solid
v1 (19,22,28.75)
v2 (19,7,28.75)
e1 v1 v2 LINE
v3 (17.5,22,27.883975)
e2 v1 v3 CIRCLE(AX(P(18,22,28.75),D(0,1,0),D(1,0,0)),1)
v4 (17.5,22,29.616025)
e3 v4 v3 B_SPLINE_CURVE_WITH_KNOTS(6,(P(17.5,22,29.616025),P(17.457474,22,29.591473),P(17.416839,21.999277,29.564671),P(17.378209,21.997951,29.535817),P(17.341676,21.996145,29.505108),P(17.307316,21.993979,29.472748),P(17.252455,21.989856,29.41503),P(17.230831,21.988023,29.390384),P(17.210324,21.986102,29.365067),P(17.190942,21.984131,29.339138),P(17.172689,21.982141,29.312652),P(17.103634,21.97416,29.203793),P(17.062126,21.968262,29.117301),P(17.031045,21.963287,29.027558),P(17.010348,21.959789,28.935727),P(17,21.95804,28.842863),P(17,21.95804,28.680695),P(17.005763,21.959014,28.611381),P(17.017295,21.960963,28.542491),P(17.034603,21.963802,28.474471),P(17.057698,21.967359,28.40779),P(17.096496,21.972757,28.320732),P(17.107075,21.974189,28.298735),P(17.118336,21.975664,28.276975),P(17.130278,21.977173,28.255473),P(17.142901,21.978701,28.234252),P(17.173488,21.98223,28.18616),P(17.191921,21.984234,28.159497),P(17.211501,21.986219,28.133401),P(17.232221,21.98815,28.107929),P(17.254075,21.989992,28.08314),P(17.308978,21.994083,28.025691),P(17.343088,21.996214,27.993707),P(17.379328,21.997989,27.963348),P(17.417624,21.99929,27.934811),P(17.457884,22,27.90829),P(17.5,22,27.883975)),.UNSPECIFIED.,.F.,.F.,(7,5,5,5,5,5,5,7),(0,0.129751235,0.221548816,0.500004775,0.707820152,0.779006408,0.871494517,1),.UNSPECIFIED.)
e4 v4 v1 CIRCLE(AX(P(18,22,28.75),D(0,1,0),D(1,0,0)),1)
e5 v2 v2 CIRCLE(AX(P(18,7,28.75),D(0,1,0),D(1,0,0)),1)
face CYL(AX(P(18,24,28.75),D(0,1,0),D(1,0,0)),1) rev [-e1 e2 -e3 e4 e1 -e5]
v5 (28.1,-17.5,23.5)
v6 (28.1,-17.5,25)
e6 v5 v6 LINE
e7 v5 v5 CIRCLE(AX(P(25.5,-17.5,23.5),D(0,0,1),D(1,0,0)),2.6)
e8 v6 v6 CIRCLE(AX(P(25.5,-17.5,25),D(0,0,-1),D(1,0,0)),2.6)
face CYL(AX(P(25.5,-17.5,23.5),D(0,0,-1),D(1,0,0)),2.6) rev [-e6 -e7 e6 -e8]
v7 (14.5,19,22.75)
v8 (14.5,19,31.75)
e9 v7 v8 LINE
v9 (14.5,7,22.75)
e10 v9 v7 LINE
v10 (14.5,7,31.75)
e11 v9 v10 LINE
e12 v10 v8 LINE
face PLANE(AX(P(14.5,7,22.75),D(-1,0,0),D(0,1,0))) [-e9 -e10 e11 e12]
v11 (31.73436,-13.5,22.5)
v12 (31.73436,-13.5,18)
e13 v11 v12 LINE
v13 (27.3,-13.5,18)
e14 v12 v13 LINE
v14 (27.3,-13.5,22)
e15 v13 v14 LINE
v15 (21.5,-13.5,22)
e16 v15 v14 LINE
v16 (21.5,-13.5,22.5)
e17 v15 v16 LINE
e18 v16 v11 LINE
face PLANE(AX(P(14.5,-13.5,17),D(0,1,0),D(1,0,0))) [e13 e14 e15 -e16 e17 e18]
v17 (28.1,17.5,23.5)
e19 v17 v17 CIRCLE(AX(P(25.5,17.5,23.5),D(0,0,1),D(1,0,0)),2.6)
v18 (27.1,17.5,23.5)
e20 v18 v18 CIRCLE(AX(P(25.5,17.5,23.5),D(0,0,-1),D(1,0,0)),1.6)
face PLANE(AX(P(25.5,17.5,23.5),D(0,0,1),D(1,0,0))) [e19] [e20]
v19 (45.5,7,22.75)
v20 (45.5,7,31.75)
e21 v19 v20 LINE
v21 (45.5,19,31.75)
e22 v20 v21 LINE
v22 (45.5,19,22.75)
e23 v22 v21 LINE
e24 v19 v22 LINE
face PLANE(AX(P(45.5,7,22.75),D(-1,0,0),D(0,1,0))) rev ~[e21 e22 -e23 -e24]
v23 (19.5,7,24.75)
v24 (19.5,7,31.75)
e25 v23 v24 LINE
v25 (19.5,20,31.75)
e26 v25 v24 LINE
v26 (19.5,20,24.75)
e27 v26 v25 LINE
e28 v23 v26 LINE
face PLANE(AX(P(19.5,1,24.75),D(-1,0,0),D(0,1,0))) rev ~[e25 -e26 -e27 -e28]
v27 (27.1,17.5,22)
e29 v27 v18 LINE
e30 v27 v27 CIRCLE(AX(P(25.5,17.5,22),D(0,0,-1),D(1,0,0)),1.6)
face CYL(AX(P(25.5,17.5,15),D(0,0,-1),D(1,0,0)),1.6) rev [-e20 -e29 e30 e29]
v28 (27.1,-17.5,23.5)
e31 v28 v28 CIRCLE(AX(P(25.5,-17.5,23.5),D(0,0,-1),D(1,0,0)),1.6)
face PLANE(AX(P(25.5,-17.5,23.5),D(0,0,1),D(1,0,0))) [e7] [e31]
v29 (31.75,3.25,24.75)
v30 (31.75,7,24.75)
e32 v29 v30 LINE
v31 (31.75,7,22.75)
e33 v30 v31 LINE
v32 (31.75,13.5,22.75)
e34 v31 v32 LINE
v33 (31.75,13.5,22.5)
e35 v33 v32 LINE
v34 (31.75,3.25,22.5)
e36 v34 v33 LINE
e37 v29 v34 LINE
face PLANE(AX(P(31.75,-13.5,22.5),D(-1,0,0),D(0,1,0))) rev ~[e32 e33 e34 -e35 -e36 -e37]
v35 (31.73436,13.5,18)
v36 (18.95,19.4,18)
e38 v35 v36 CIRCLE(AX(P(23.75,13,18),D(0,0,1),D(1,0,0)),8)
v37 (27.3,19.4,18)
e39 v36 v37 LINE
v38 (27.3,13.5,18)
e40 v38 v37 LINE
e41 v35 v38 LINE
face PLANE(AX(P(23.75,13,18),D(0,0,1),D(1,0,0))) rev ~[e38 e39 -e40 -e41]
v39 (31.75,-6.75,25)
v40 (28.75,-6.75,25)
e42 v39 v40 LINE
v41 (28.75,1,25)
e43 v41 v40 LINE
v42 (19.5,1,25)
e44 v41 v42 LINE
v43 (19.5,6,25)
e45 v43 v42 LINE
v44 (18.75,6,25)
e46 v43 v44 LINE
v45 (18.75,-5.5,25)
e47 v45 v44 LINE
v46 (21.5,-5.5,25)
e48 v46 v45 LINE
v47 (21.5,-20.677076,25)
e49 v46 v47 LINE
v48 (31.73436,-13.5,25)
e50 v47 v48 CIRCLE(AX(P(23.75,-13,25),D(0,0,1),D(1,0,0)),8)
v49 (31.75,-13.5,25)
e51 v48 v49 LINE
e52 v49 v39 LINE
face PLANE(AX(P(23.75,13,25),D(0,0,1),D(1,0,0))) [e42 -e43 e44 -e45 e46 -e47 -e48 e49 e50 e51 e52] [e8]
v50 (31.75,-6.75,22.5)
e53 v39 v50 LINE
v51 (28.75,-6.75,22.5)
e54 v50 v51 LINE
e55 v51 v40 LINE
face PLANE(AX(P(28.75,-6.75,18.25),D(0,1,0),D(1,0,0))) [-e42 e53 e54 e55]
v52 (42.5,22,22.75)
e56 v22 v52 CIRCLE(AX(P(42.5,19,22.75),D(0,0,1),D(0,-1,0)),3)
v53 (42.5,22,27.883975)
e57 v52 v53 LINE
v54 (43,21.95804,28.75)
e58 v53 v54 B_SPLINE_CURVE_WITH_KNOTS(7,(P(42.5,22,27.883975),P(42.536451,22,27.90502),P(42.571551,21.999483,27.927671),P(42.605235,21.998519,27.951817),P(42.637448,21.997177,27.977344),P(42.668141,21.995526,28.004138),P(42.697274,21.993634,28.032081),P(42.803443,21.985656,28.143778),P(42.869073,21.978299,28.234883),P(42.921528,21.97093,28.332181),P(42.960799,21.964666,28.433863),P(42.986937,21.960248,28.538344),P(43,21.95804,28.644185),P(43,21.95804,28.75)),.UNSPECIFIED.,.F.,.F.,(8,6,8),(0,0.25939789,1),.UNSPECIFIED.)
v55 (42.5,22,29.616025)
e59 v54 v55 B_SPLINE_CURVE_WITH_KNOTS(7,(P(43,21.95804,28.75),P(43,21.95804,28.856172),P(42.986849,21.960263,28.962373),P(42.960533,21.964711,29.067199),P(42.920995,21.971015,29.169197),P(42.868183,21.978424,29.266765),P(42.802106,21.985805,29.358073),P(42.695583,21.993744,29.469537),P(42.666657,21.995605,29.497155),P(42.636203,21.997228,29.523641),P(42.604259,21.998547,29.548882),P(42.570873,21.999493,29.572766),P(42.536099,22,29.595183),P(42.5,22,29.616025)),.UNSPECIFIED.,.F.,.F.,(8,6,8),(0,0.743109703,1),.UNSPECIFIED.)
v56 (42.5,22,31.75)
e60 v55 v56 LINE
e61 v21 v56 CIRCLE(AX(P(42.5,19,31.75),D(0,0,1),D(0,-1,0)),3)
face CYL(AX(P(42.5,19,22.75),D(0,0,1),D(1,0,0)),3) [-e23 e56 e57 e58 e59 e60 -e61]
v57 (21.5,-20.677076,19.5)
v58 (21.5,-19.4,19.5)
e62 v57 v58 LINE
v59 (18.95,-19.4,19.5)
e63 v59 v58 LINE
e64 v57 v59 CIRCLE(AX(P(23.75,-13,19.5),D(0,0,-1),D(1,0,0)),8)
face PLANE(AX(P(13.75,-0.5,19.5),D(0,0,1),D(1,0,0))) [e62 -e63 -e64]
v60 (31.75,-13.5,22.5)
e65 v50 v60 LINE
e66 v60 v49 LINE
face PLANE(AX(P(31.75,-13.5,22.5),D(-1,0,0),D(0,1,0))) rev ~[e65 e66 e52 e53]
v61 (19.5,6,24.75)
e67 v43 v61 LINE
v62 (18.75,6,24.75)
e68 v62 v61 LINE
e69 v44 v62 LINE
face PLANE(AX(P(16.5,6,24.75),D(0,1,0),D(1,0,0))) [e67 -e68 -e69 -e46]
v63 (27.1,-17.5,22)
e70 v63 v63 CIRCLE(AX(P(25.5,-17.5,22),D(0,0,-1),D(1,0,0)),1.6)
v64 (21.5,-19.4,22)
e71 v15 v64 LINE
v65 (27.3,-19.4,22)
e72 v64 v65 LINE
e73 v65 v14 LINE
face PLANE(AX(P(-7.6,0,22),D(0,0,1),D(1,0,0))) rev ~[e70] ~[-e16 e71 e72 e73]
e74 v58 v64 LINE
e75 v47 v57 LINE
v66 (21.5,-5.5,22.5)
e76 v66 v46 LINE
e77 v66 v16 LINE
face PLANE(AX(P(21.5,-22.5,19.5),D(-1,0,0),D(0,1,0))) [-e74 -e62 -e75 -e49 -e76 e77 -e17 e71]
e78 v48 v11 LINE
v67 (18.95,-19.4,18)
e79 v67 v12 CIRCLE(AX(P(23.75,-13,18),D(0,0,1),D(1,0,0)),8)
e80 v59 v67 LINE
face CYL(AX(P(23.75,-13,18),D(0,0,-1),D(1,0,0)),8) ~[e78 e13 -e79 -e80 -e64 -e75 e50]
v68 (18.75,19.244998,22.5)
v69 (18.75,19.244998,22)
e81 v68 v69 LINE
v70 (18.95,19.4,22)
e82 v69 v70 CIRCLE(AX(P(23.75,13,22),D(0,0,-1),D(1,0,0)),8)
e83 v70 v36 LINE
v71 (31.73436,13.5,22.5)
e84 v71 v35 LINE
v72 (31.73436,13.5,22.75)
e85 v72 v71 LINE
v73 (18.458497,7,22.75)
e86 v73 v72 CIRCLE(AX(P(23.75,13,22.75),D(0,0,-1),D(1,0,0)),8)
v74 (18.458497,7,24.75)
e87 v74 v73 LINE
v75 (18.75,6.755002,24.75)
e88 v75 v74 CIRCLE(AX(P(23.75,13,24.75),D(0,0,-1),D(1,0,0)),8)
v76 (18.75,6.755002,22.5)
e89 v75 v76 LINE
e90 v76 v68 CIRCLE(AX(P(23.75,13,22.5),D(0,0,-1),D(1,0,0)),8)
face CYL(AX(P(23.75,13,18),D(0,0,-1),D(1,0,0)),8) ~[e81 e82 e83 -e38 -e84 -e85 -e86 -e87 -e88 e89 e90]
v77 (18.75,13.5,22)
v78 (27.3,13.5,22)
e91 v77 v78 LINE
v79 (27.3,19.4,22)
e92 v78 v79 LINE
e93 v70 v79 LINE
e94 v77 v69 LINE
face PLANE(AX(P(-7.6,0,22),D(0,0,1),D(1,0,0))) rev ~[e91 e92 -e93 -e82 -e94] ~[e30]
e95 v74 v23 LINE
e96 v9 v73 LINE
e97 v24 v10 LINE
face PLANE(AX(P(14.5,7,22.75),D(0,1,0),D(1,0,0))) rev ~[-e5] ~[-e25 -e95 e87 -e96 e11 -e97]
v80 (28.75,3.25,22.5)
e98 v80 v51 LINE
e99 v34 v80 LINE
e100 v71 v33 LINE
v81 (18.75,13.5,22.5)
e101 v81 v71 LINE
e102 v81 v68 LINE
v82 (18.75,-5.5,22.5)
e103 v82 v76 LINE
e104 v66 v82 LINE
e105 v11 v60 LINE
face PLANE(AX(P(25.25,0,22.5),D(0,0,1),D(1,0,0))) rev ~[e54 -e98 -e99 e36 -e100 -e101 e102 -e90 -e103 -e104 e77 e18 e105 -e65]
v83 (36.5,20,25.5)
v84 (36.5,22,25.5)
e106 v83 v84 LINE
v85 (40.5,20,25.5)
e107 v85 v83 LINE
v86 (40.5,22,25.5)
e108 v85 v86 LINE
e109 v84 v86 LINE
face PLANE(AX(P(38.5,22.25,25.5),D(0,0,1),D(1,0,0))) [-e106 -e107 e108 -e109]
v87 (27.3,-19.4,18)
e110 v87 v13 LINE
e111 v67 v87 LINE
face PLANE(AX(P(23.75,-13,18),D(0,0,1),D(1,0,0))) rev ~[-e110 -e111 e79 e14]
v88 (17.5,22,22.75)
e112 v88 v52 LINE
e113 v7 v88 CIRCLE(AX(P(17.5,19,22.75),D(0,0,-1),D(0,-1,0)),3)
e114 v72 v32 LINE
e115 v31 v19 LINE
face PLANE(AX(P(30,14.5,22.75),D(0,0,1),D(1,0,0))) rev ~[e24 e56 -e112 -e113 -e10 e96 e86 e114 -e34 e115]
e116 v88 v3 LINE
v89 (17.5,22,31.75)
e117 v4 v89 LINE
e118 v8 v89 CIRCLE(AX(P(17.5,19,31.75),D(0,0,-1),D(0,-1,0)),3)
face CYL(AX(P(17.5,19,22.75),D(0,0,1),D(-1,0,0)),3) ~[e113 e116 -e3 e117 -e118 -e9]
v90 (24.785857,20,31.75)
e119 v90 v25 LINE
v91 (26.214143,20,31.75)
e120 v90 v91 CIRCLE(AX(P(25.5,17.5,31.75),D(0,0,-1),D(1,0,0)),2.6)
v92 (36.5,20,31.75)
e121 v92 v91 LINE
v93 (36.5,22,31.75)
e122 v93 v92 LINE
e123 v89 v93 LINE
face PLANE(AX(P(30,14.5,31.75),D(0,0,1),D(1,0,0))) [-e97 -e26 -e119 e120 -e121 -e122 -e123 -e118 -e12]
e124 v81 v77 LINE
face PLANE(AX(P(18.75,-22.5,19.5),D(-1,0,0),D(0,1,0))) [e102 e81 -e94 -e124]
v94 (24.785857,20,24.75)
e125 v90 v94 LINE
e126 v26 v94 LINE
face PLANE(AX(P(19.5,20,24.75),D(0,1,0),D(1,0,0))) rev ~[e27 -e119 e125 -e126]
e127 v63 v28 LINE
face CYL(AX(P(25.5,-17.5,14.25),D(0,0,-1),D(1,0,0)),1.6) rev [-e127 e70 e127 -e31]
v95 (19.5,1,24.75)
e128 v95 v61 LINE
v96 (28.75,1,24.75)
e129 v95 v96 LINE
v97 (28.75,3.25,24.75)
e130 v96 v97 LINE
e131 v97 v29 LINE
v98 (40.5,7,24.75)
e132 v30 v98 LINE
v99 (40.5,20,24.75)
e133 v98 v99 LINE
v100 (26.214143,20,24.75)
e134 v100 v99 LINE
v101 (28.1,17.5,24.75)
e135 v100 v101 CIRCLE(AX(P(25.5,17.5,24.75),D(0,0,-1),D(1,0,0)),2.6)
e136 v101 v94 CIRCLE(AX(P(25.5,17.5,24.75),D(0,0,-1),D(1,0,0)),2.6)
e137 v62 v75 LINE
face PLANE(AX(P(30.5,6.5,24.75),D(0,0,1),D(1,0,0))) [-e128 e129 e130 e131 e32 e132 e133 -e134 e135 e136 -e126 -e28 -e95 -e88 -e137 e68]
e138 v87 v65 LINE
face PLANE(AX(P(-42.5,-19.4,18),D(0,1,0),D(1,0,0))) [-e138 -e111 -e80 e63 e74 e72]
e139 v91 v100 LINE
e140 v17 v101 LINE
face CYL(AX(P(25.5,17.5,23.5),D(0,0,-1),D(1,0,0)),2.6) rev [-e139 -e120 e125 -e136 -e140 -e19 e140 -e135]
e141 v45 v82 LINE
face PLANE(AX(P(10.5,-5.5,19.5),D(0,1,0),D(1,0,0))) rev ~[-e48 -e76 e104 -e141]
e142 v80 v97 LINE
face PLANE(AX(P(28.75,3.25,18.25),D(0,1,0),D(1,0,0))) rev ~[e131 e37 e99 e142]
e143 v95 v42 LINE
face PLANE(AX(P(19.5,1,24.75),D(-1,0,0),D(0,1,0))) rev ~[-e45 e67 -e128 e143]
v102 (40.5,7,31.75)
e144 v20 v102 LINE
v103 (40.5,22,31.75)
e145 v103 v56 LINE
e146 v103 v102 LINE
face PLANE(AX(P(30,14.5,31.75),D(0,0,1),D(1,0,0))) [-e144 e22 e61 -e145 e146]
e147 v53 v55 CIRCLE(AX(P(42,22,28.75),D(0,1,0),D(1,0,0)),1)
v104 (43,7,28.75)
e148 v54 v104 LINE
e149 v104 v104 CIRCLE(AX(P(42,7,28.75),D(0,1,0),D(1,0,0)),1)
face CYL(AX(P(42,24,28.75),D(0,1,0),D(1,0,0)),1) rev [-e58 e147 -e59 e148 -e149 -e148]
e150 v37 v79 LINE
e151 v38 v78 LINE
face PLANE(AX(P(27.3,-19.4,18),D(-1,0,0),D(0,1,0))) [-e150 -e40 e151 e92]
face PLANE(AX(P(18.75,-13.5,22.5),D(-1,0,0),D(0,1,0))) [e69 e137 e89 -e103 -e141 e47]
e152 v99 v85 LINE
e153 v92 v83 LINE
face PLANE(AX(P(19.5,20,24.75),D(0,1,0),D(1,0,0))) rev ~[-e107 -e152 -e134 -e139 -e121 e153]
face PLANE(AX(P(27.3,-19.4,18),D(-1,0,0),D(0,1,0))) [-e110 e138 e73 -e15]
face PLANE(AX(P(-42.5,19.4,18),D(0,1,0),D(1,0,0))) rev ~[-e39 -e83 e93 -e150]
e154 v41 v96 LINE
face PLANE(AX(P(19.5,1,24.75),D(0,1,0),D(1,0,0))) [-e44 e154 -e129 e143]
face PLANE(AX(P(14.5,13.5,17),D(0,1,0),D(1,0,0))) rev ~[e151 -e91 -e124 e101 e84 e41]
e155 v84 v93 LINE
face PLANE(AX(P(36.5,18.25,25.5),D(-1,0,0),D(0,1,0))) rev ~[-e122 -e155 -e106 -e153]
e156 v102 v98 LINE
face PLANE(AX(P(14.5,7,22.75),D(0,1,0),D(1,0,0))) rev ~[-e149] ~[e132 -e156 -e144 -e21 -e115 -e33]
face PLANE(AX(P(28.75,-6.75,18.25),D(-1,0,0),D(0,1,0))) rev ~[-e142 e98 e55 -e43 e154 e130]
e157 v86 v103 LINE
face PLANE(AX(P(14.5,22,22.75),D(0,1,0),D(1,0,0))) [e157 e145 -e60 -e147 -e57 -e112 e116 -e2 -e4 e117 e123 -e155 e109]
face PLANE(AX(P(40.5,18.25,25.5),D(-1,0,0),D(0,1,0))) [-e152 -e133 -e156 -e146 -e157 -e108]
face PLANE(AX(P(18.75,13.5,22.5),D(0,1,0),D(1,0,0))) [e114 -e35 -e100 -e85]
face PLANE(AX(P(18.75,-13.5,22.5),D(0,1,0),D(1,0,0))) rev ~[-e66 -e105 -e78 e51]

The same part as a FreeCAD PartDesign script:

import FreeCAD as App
import Part
import Sketcher


def edges_at(feature, points):
    """Names of the edges that pass closest to the given points."""
    edges = feature.Shape.Edges
    near = lambda p: min(range(len(edges)), key=lambda i: edges[i].distToShape(Part.Vertex(*p))[0])
    return sorted({f"Edge{near(p) + 1}" for p in points})

doc = App.newDocument("Part")
body = doc.addObject("PartDesign::Body", "Body")

# Sketch on XZ plane
sketch1 = body.newObject("Sketcher::SketchObject", "Sketch")
sketch1.AttachmentSupport = (doc.getObject("XZ_Plane"), [""])
sketch1.MapMode = "FlatFace"
sketch1.AttachmentOffset = App.Placement(App.Vector(0, 0, -23), App.Rotation())
sketch1.addGeometry(Part.Circle(App.Vector(22.5, 30.5, 0), App.Vector(0, 0, 1), 1), False)
sketch1.addConstraint([
    Sketcher.Constraint("Diameter", 0, 2.0),
    Sketcher.Constraint("DistanceX", -1, 1, 0, 3, 22.5),
    Sketcher.Constraint("DistanceY", -1, 1, 0, 3, 30.5),
])
pad1 = body.newObject("PartDesign::Pad", "Pad")
pad1.Profile = sketch1
pad1.Length = 20
body2 = doc.addObject("PartDesign::Body", "Body001")

# Sketch on XZ plane
sketch2 = body2.newObject("Sketcher::SketchObject", "Sketch001")
sketch2.AttachmentSupport = (doc.getObject("XZ_Plane001"), [""])
sketch2.MapMode = "FlatFace"
sketch2.AttachmentOffset = App.Placement(App.Vector(0, 0, -23), App.Rotation())
sketch2.addGeometry(Part.Circle(App.Vector(-1.5, 30.5, 0), App.Vector(0, 0, 1), 1), False)
sketch2.addConstraint([
    Sketcher.Constraint("Diameter", 0, 2.0),
    Sketcher.Constraint("DistanceX", 0, 3, -1, 1, 1.5),
    Sketcher.Constraint("DistanceY", -1, 1, 0, 3, 30.5),
])
pad2 = body2.newObject("PartDesign::Pad", "Pad001")
pad2.Profile = sketch2
pad2.Length = 20
body3 = doc.addObject("PartDesign::Body", "Body002")

# Sketch on XY plane
sketch3 = body3.newObject("Sketcher::SketchObject", "Sketch002")
sketch3.AttachmentSupport = (doc.getObject("XY_Plane002"), [""])
sketch3.MapMode = "FlatFace"
sketch3.AttachmentOffset = App.Placement(App.Vector(0, 0, 26.5), App.Rotation())
sketch3.addGeometry([
    Part.LineSegment(App.Vector(-3, 6, 0), App.Vector(-3, 5, 0)),
    Part.LineSegment(App.Vector(-3, 5, 0), App.Vector(25, 5, 0)),
    Part.LineSegment(App.Vector(25, 5, 0), App.Vector(25, 6, 0)),
    Part.LineSegment(App.Vector(25, 6, 0), App.Vector(-3, 6, 0)),
], False)
sketch3.addConstraint([
    Sketcher.Constraint("Coincident", 0, 2, 1, 1),
    Sketcher.Constraint("Coincident", 1, 2, 2, 1),
    Sketcher.Constraint("Coincident", 2, 2, 3, 1),
    Sketcher.Constraint("Coincident", 3, 2, 0, 1),
    Sketcher.Constraint("Vertical", 0),
    Sketcher.Constraint("Horizontal", 1),
    Sketcher.Constraint("Vertical", 2),
    Sketcher.Constraint("Horizontal", 3),
    Sketcher.Constraint("DistanceX", 1, 1, 1, 2, 28.0),
    Sketcher.Constraint("DistanceY", 0, 2, 0, 1, 1.0),
    Sketcher.Constraint("DistanceX", 0, 2, -1, 1, 3.0),
    Sketcher.Constraint("DistanceY", -1, 1, 0, 2, 5.0),
])
pad3 = body3.newObject("PartDesign::Pad", "Pad002")
pad3.Profile = sketch3
pad3.Length = 8
body4 = doc.addObject("PartDesign::Body", "Body003")

# Sketch on XY plane
sketch4 = body4.newObject("Sketcher::SketchObject", "Sketch003")
sketch4.AttachmentSupport = (doc.getObject("XY_Plane003"), [""])
sketch4.MapMode = "FlatFace"
sketch4.AttachmentOffset = App.Placement(App.Vector(0, 0, 26.5), App.Rotation())
sketch4.addGeometry([
    Part.LineSegment(App.Vector(0, 19, 0), App.Vector(0, 0, 0)),
    Part.LineSegment(App.Vector(0, 0, 0), App.Vector(21, 0, 0)),
    Part.LineSegment(App.Vector(21, 0, 0), App.Vector(21, 19, 0)),
    Part.LineSegment(App.Vector(21, 19, 0), App.Vector(0, 19, 0)),
], False)
sketch4.addConstraint([
    Sketcher.Constraint("Coincident", 0, 2, 1, 1),
    Sketcher.Constraint("Coincident", 1, 2, 2, 1),
    Sketcher.Constraint("Coincident", 2, 2, 3, 1),
    Sketcher.Constraint("Coincident", 3, 2, 0, 1),
    Sketcher.Constraint("Vertical", 0),
    Sketcher.Constraint("Horizontal", 1),
    Sketcher.Constraint("Vertical", 2),
    Sketcher.Constraint("Horizontal", 3),
    Sketcher.Constraint("Coincident", 0, 2, -1, 1),
    Sketcher.Constraint("DistanceX", 1, 1, 1, 2, 21.0),
    Sketcher.Constraint("DistanceY", 0, 2, 0, 1, 19.0),
])
pad4 = body4.newObject("PartDesign::Pad", "Pad003")
pad4.Profile = sketch4
pad4.Length = 8
doc.recompute()

boolean = body4.newObject("PartDesign::Boolean", "Boolean")
boolean.Type = "Fuse"
boolean.addObjects([body3])
doc.recompute()

boolean2 = body4.newObject("PartDesign::Boolean", "Boolean001")
boolean2.Type = "Fuse"
boolean2.addObjects([body])
doc.recompute()

boolean3 = body4.newObject("PartDesign::Boolean", "Boolean002")
boolean3.Type = "Fuse"
boolean3.addObjects([body2])
body5 = doc.addObject("PartDesign::Body", "Body004")
doc.recompute()

body4.Placement = App.Placement(App.Vector(19.5, 1, -3.75), App.Rotation(App.Vector(0, 0, 1), 0))
boolean4 = body5.newObject("PartDesign::Boolean", "Boolean003")
boolean4.Type = "Fuse"
boolean4.addObjects([body4])
body6 = doc.addObject("PartDesign::Body", "Body005")

# Sketch on XY plane
sketch5 = body6.newObject("Sketcher::SketchObject", "Sketch004")
sketch5.AttachmentSupport = (doc.getObject("XY_Plane005"), [""])
sketch5.MapMode = "FlatFace"
sketch5.AttachmentOffset = App.Placement(App.Vector(0, 0, 15), App.Rotation())
sketch5.addGeometry([
    Part.LineSegment(App.Vector(14.5, 13.5, 0), App.Vector(14.5, -13.5, 0)),
    Part.LineSegment(App.Vector(14.5, -13.5, 0), App.Vector(32.5, -13.5, 0)),
    Part.LineSegment(App.Vector(32.5, -13.5, 0), App.Vector(32.5, 13.5, 0)),
    Part.LineSegment(App.Vector(32.5, 13.5, 0), App.Vector(14.5, 13.5, 0)),
], False)
sketch5.addConstraint([
    Sketcher.Constraint("Coincident", 0, 2, 1, 1),
    Sketcher.Constraint("Coincident", 1, 2, 2, 1),
    Sketcher.Constraint("Coincident", 2, 2, 3, 1),
    Sketcher.Constraint("Coincident", 3, 2, 0, 1),
    Sketcher.Constraint("Vertical", 0),
    Sketcher.Constraint("Horizontal", 1),
    Sketcher.Constraint("Vertical", 2),
    Sketcher.Constraint("Horizontal", 3),
    Sketcher.Constraint("DistanceX", 1, 1, 1, 2, 18.0),
    Sketcher.Constraint("DistanceY", 0, 2, 0, 1, 27.0),
    Sketcher.Constraint("DistanceX", -1, 1, 0, 2, 14.5),
    Sketcher.Constraint("DistanceY", 0, 2, -1, 1, 13.5),
])
pad5 = body6.newObject("PartDesign::Pad", "Pad004")
pad5.Profile = sketch5
pad5.Length = 5.5
body7 = doc.addObject("PartDesign::Body", "Body006")

# Sketch on XY plane
sketch6 = body7.newObject("Sketcher::SketchObject", "Sketch005")
sketch6.AttachmentSupport = (doc.getObject("XY_Plane006"), [""])
sketch6.MapMode = "FlatFace"
sketch6.AttachmentOffset = App.Placement(App.Vector(0, 0, 12.25), App.Rotation())
sketch6.addGeometry(Part.Circle(App.Vector(25.5, -17.5, 0), App.Vector(0, 0, 1), 1.6), False)
sketch6.addConstraint([
    Sketcher.Constraint("Diameter", 0, 3.2),
    Sketcher.Constraint("DistanceX", -1, 1, 0, 3, 25.5),
    Sketcher.Constraint("DistanceY", 0, 3, -1, 1, 17.5),
])
pad6 = body7.newObject("PartDesign::Pad", "Pad005")
pad6.Profile = sketch6
pad6.Length = 10
body8 = doc.addObject("PartDesign::Body", "Body007")

# Sketch on XY plane
sketch7 = body8.newObject("Sketcher::SketchObject", "Sketch006")
sketch7.AttachmentSupport = (doc.getObject("XY_Plane007"), [""])
sketch7.MapMode = "FlatFace"
sketch7.AttachmentOffset = App.Placement(App.Vector(0, 0, 13), App.Rotation())
sketch7.addGeometry(Part.Circle(App.Vector(25.5, 17.5, 0), App.Vector(0, 0, 1), 1.6), False)
sketch7.addConstraint([
    Sketcher.Constraint("Diameter", 0, 3.2),
    Sketcher.Constraint("DistanceX", -1, 1, 0, 3, 25.5),
    Sketcher.Constraint("DistanceY", -1, 1, 0, 3, 17.5),
])
pad7 = body8.newObject("PartDesign::Pad", "Pad006")
pad7.Profile = sketch7
pad7.Length = 10
body9 = doc.addObject("PartDesign::Body", "Body008")

# Sketch on XY plane
sketch8 = body9.newObject("Sketcher::SketchObject", "Sketch007")
sketch8.AttachmentSupport = (doc.getObject("XY_Plane008"), [""])
sketch8.MapMode = "FlatFace"
sketch8.AttachmentOffset = App.Placement(App.Vector(0, 0, 16), App.Rotation())
sketch8.addGeometry([
    Part.LineSegment(App.Vector(-42.5, 19.4, 0), App.Vector(-42.5, -19.4, 0)),
    Part.LineSegment(App.Vector(-42.5, -19.4, 0), App.Vector(27.3, -19.4, 0)),
    Part.LineSegment(App.Vector(27.3, -19.4, 0), App.Vector(27.3, 19.4, 0)),
    Part.LineSegment(App.Vector(27.3, 19.4, 0), App.Vector(-42.5, 19.4, 0)),
], False)
sketch8.addConstraint([
    Sketcher.Constraint("Coincident", 0, 2, 1, 1),
    Sketcher.Constraint("Coincident", 1, 2, 2, 1),
    Sketcher.Constraint("Coincident", 2, 2, 3, 1),
    Sketcher.Constraint("Coincident", 3, 2, 0, 1),
    Sketcher.Constraint("Vertical", 0),
    Sketcher.Constraint("Horizontal", 1),
    Sketcher.Constraint("Vertical", 2),
    Sketcher.Constraint("Horizontal", 3),
    Sketcher.Constraint("DistanceX", 1, 1, 1, 2, 69.8),
    Sketcher.Constraint("DistanceY", 0, 2, 0, 1, 38.8),
    Sketcher.Constraint("DistanceX", 0, 2, -1, 1, 42.5),
    Sketcher.Constraint("DistanceY", 0, 2, -1, 1, 19.4),
])
pad8 = body9.newObject("PartDesign::Pad", "Pad007")
pad8.Profile = sketch8
pad8.Length = 4
body10 = doc.addObject("PartDesign::Body", "Body009")

# Sketch on XY plane
sketch9 = body10.newObject("Sketcher::SketchObject", "Sketch008")
sketch9.AttachmentSupport = (doc.getObject("XY_Plane009"), [""])
sketch9.MapMode = "FlatFace"
sketch9.AttachmentOffset = App.Placement(App.Vector(0, 0, 21.5), App.Rotation())
sketch9.addGeometry(Part.Circle(App.Vector(25.5, -17.5, 0), App.Vector(0, 0, 1), 2.6), False)
sketch9.addConstraint([
    Sketcher.Constraint("Diameter", 0, 5.2),
    Sketcher.Constraint("DistanceX", -1, 1, 0, 3, 25.5),
    Sketcher.Constraint("DistanceY", 0, 3, -1, 1, 17.5),
])
pad9 = body10.newObject("PartDesign::Pad", "Pad008")
pad9.Profile = sketch9
pad9.Length = 10
body11 = doc.addObject("PartDesign::Body", "Body010")

# Sketch on XY plane
sketch10 = body11.newObject("Sketcher::SketchObject", "Sketch009")
sketch10.AttachmentSupport = (doc.getObject("XY_Plane010"), [""])
sketch10.MapMode = "FlatFace"
sketch10.AttachmentOffset = App.Placement(App.Vector(0, 0, 21.5), App.Rotation())
sketch10.addGeometry(Part.Circle(App.Vector(25.5, 17.5, 0), App.Vector(0, 0, 1), 2.6), False)
sketch10.addConstraint([
    Sketcher.Constraint("Diameter", 0, 5.2),
    Sketcher.Constraint("DistanceX", -1, 1, 0, 3, 25.5),
    Sketcher.Constraint("DistanceY", -1, 1, 0, 3, 17.5),
])
pad10 = body11.newObject("PartDesign::Pad", "Pad009")
pad10.Profile = sketch10
pad10.Length = 10
body12 = doc.addObject("PartDesign::Body", "Body011")

# Sketch on XY plane
sketch11 = body12.newObject("Sketcher::SketchObject", "Sketch010")
sketch11.AttachmentSupport = (doc.getObject("XY_Plane011"), [""])
sketch11.MapMode = "FlatFace"
sketch11.AttachmentOffset = App.Placement(App.Vector(0, 0, 17.5), App.Rotation())
sketch11.addGeometry([
    Part.LineSegment(App.Vector(10.5, -5.5, 0), App.Vector(10.5, -22.5, 0)),
    Part.LineSegment(App.Vector(10.5, -22.5, 0), App.Vector(21.5, -22.5, 0)),
    Part.LineSegment(App.Vector(21.5, -22.5, 0), App.Vector(21.5, -5.5, 0)),
    Part.LineSegment(App.Vector(21.5, -5.5, 0), App.Vector(10.5, -5.5, 0)),
], False)
sketch11.addConstraint([
    Sketcher.Constraint("Coincident", 0, 2, 1, 1),
    Sketcher.Constraint("Coincident", 1, 2, 2, 1),
    Sketcher.Constraint("Coincident", 2, 2, 3, 1),
    Sketcher.Constraint("Coincident", 3, 2, 0, 1),
    Sketcher.Constraint("Vertical", 0),
    Sketcher.Constraint("Horizontal", 1),
    Sketcher.Constraint("Vertical", 2),
    Sketcher.Constraint("Horizontal", 3),
    Sketcher.Constraint("DistanceX", 1, 1, 1, 2, 11.0),
    Sketcher.Constraint("DistanceY", 0, 2, 0, 1, 17.0),
    Sketcher.Constraint("DistanceX", -1, 1, 0, 2, 10.5),
    Sketcher.Constraint("DistanceY", 0, 2, -1, 1, 22.5),
])
pad11 = body12.newObject("PartDesign::Pad", "Pad010")
pad11.Profile = sketch11
pad11.Length = 6
body13 = doc.addObject("PartDesign::Body", "Body012")

# Sketch on XY plane
sketch12 = body13.newObject("Sketcher::SketchObject", "Sketch011")
sketch12.AttachmentSupport = (doc.getObject("XY_Plane012"), [""])
sketch12.MapMode = "FlatFace"
sketch12.AttachmentOffset = App.Placement(App.Vector(0, 0, 23.5), App.Rotation())
sketch12.addGeometry([
    Part.LineSegment(App.Vector(36.5, 26.25, 0), App.Vector(36.5, 18.25, 0)),
    Part.LineSegment(App.Vector(36.5, 18.25, 0), App.Vector(40.5, 18.25, 0)),
    Part.LineSegment(App.Vector(40.5, 18.25, 0), App.Vector(40.5, 26.25, 0)),
    Part.LineSegment(App.Vector(40.5, 26.25, 0), App.Vector(36.5, 26.25, 0)),
], False)
sketch12.addConstraint([
    Sketcher.Constraint("Coincident", 0, 2, 1, 1),
    Sketcher.Constraint("Coincident", 1, 2, 2, 1),
    Sketcher.Constraint("Coincident", 2, 2, 3, 1),
    Sketcher.Constraint("Coincident", 3, 2, 0, 1),
    Sketcher.Constraint("Vertical", 0),
    Sketcher.Constraint("Horizontal", 1),
    Sketcher.Constraint("Vertical", 2),
    Sketcher.Constraint("Horizontal", 3),
    Sketcher.Constraint("DistanceX", 1, 1, 1, 2, 4.0),
    Sketcher.Constraint("DistanceY", 0, 2, 0, 1, 8.0),
    Sketcher.Constraint("DistanceX", -1, 1, 0, 2, 36.5),
    Sketcher.Constraint("DistanceY", -1, 1, 0, 2, 18.25),
])
pad12 = body13.newObject("PartDesign::Pad", "Pad011")
pad12.Profile = sketch12
pad12.Length = 11
body14 = doc.addObject("PartDesign::Body", "Body013")

# Sketch on XY plane
sketch13 = body14.newObject("Sketcher::SketchObject", "Sketch012")
sketch13.AttachmentSupport = (doc.getObject("XY_Plane013"), [""])
sketch13.MapMode = "FlatFace"
sketch13.AttachmentOffset = App.Placement(App.Vector(0, 0, 16.25), App.Rotation())
sketch13.addGeometry([
    Part.LineSegment(App.Vector(28.75, 3.25, 0), App.Vector(28.75, -6.75, 0)),
    Part.LineSegment(App.Vector(28.75, -6.75, 0), App.Vector(38.75, -6.75, 0)),
    Part.LineSegment(App.Vector(38.75, -6.75, 0), App.Vector(38.75, 3.25, 0)),
    Part.LineSegment(App.Vector(38.75, 3.25, 0), App.Vector(28.75, 3.25, 0)),
], False)
sketch13.addConstraint([
    Sketcher.Constraint("Coincident", 0, 2, 1, 1),
    Sketcher.Constraint("Coincident", 1, 2, 2, 1),
    Sketcher.Constraint("Coincident", 2, 2, 3, 1),
    Sketcher.Constraint("Coincident", 3, 2, 0, 1),
    Sketcher.Constraint("Vertical", 0),
    Sketcher.Constraint("Horizontal", 1),
    Sketcher.Constraint("Vertical", 2),
    Sketcher.Constraint("Horizontal", 3),
    Sketcher.Constraint("Equal", 3, 0),
    Sketcher.Constraint("DistanceX", 1, 1, 1, 2, 10.0),
    Sketcher.Constraint("DistanceX", -1, 1, 0, 2, 28.75),
    Sketcher.Constraint("DistanceY", 0, 2, -1, 1, 6.75),
])
pad13 = body14.newObject("PartDesign::Pad", "Pad012")
pad13.Profile = sketch13
pad13.Length = 10
body15 = doc.addObject("PartDesign::Body", "Body014")
body15.AllowCompound = True

# Sketch on XY plane
sketch14 = body15.newObject("Sketcher::SketchObject", "Sketch013")
sketch14.AttachmentSupport = (doc.getObject("XY_Plane014"), [""])
sketch14.MapMode = "FlatFace"
sketch14.AttachmentOffset = App.Placement(App.Vector(0, 0, 17.5), App.Rotation())
sketch14.addGeometry([
    Part.LineSegment(App.Vector(8.75, 21.5, 0), App.Vector(8.75, -22.5, 0)),
    Part.LineSegment(App.Vector(8.75, -22.5, 0), App.Vector(18.75, -22.5, 0)),
    Part.LineSegment(App.Vector(18.75, -22.5, 0), App.Vector(18.75, 21.5, 0)),
    Part.LineSegment(App.Vector(18.75, 21.5, 0), App.Vector(8.75, 21.5, 0)),
], False)
sketch14.addConstraint([
    Sketcher.Constraint("Coincident", 0, 2, 1, 1),
    Sketcher.Constraint("Coincident", 1, 2, 2, 1),
    Sketcher.Constraint("Coincident", 2, 2, 3, 1),
    Sketcher.Constraint("Coincident", 3, 2, 0, 1),
    Sketcher.Constraint("Vertical", 0),
    Sketcher.Constraint("Horizontal", 1),
    Sketcher.Constraint("Vertical", 2),
    Sketcher.Constraint("Horizontal", 3),
    Sketcher.Constraint("DistanceX", 1, 1, 1, 2, 10.0),
    Sketcher.Constraint("DistanceY", 0, 2, 0, 1, 44.0),
    Sketcher.Constraint("DistanceY", 0, 2, -1, 1, 22.5),
    Sketcher.Constraint("DistanceX", -1, 1, 0, 2, 8.75),
])
pad14 = body15.newObject("PartDesign::Pad", "Pad013")
pad14.Profile = sketch14
pad14.Length = 3
doc.recompute()

boolean5 = body15.newObject("PartDesign::Boolean", "Boolean004")
boolean5.Type = "Fuse"
boolean5.addObjects([body6])
doc.recompute()

boolean6 = body15.newObject("PartDesign::Boolean", "Boolean005")
boolean6.Type = "Fuse"
boolean6.addObjects([body7])
doc.recompute()

boolean7 = body15.newObject("PartDesign::Boolean", "Boolean006")
boolean7.Type = "Fuse"
boolean7.addObjects([body8])
doc.recompute()

boolean8 = body15.newObject("PartDesign::Boolean", "Boolean007")
boolean8.Type = "Fuse"
boolean8.addObjects([body9])
doc.recompute()

boolean9 = body15.newObject("PartDesign::Boolean", "Boolean008")
boolean9.Type = "Fuse"
boolean9.addObjects([body10])
doc.recompute()

boolean10 = body15.newObject("PartDesign::Boolean", "Boolean009")
boolean10.Type = "Fuse"
boolean10.addObjects([body11])
doc.recompute()

boolean11 = body15.newObject("PartDesign::Boolean", "Boolean010")
boolean11.Type = "Fuse"
boolean11.addObjects([body12])
doc.recompute()

boolean12 = body15.newObject("PartDesign::Boolean", "Boolean011")
boolean12.Type = "Fuse"
boolean12.addObjects([body13])
doc.recompute()

boolean13 = body15.newObject("PartDesign::Boolean", "Boolean012")
boolean13.Type = "Fuse"
boolean13.addObjects([body14])
body16 = doc.addObject("PartDesign::Body", "Body015")

# Sketch on XY plane
sketch15 = body16.newObject("Sketcher::SketchObject", "Sketch014")
sketch15.AttachmentSupport = (doc.getObject("XY_Plane015"), [""])
sketch15.MapMode = "FlatFace"
sketch15.AttachmentOffset = App.Placement(App.Vector(0, 0, 16), App.Rotation())
sketch15.addGeometry(Part.Circle(App.Vector(23.75, -13, 0), App.Vector(0, 0, 1), 8), False)
sketch15.addConstraint([
    Sketcher.Constraint("Diameter", 0, 16.0),
    Sketcher.Constraint("DistanceY", 0, 3, -1, 1, 13.0),
    Sketcher.Constraint("DistanceX", -1, 1, 0, 3, 23.75),
])
pad15 = body16.newObject("PartDesign::Pad", "Pad014")
pad15.Profile = sketch15
pad15.Length = 7
body17 = doc.addObject("PartDesign::Body", "Body016")

# Sketch on XY plane
sketch16 = body17.newObject("Sketcher::SketchObject", "Sketch015")
sketch16.AttachmentSupport = (doc.getObject("XY_Plane016"), [""])
sketch16.MapMode = "FlatFace"
sketch16.AttachmentOffset = App.Placement(App.Vector(0, 0, 16), App.Rotation())
sketch16.addGeometry(Part.Circle(App.Vector(23.75, 13, 0), App.Vector(0, 0, 1), 8), False)
sketch16.addConstraint([
    Sketcher.Constraint("Diameter", 0, 16.0),
    Sketcher.Constraint("DistanceY", -1, 1, 0, 3, 13.0),
    Sketcher.Constraint("DistanceX", -1, 1, 0, 3, 23.75),
])
pad16 = body17.newObject("PartDesign::Pad", "Pad015")
pad16.Profile = sketch16
pad16.Length = 7
body18 = doc.addObject("PartDesign::Body", "Body017")

# Sketch on XY plane
sketch17 = body18.newObject("Sketcher::SketchObject", "Sketch016")
sketch17.AttachmentSupport = (doc.getObject("XY_Plane017"), [""])
sketch17.MapMode = "FlatFace"
sketch17.AttachmentOffset = App.Placement(App.Vector(0, 0, 20.75), App.Rotation())
sketch17.addGeometry([
    Part.LineSegment(App.Vector(14.5, 22, 0), App.Vector(14.5, 7, 0)),
    Part.LineSegment(App.Vector(14.5, 7, 0), App.Vector(45.5, 7, 0)),
    Part.LineSegment(App.Vector(45.5, 7, 0), App.Vector(45.5, 22, 0)),
    Part.LineSegment(App.Vector(45.5, 22, 0), App.Vector(14.5, 22, 0)),
], False)
sketch17.addConstraint([
    Sketcher.Constraint("Coincident", 0, 2, 1, 1),
    Sketcher.Constraint("Coincident", 1, 2, 2, 1),
    Sketcher.Constraint("Coincident", 2, 2, 3, 1),
    Sketcher.Constraint("Coincident", 3, 2, 0, 1),
    Sketcher.Constraint("Vertical", 0),
    Sketcher.Constraint("Horizontal", 1),
    Sketcher.Constraint("Vertical", 2),
    Sketcher.Constraint("Horizontal", 3),
    Sketcher.Constraint("DistanceX", 1, 1, 1, 2, 31.0),
    Sketcher.Constraint("DistanceY", 0, 2, 0, 1, 15.0),
    Sketcher.Constraint("DistanceY", -1, 1, 0, 2, 7.0),
    Sketcher.Constraint("DistanceX", -1, 1, 0, 2, 14.5),
])
pad17 = body18.newObject("PartDesign::Pad", "Pad016")
pad17.Profile = sketch17
pad17.Length = 9
doc.recompute()

fillet = body18.newObject("PartDesign::Fillet", "Fillet")
fillet.Base = (pad17, edges_at(pad17, [(14.5, 22, 25.25), (45.5, 22, 25.25)]))
fillet.Radius = 3
body19 = doc.addObject("PartDesign::Body", "Body018")

# Sketch on XY plane
sketch18 = body19.newObject("Sketcher::SketchObject", "Sketch017")
sketch18.AttachmentSupport = (doc.getObject("XY_Plane018"), [""])
sketch18.MapMode = "FlatFace"
sketch18.AttachmentOffset = App.Placement(App.Vector(0, 0, 20.5), App.Rotation())
sketch18.addGeometry([
    Part.LineSegment(App.Vector(18.75, 13.5, 0), App.Vector(18.75, -13.5, 0)),
    Part.LineSegment(App.Vector(18.75, -13.5, 0), App.Vector(31.75, -13.5, 0)),
    Part.LineSegment(App.Vector(31.75, -13.5, 0), App.Vector(31.75, 13.5, 0)),
    Part.LineSegment(App.Vector(31.75, 13.5, 0), App.Vector(18.75, 13.5, 0)),
], False)
sketch18.addConstraint([
    Sketcher.Constraint("Coincident", 0, 2, 1, 1),
    Sketcher.Constraint("Coincident", 1, 2, 2, 1),
    Sketcher.Constraint("Coincident", 2, 2, 3, 1),
    Sketcher.Constraint("Coincident", 3, 2, 0, 1),
    Sketcher.Constraint("Vertical", 0),
    Sketcher.Constraint("Horizontal", 1),
    Sketcher.Constraint("Vertical", 2),
    Sketcher.Constraint("Horizontal", 3),
    Sketcher.Constraint("DistanceX", 1, 1, 1, 2, 13.0),
    Sketcher.Constraint("DistanceY", 0, 2, 0, 1, 27.0),
    Sketcher.Constraint("DistanceY", 0, 2, -1, 1, 13.5),
    Sketcher.Constraint("DistanceX", -1, 1, 0, 2, 18.75),
])
pad18 = body19.newObject("PartDesign::Pad", "Pad017")
pad18.Profile = sketch18
pad18.Length = 2.5
doc.recompute()

boolean14 = body19.newObject("PartDesign::Boolean", "Boolean013")
boolean14.Type = "Fuse"
boolean14.addObjects([body16])
doc.recompute()

boolean15 = body19.newObject("PartDesign::Boolean", "Boolean014")
boolean15.Type = "Fuse"
boolean15.addObjects([body17])
doc.recompute()

boolean16 = body19.newObject("PartDesign::Boolean", "Boolean015")
boolean16.Type = "Fuse"
boolean16.addObjects([body18])
doc.recompute()

boolean17 = body19.newObject("PartDesign::Boolean", "Boolean016")
boolean17.Type = "Cut"
boolean17.addObjects([body15])
doc.recompute()

boolean18 = body19.newObject("PartDesign::Boolean", "Boolean017")
boolean18.Type = "Cut"
boolean18.addObjects([body5])
body20 = doc.addObject("PartDesign::Body", "Body019")
doc.recompute()

body19.Placement = App.Placement(App.Vector(0, 0, 2), App.Rotation(App.Vector(0, 0, 1), 0))
boolean19 = body20.newObject("PartDesign::Boolean", "Boolean018")
boolean19.Type = "Fuse"
boolean19.addObjects([body19])

doc.recompute()
